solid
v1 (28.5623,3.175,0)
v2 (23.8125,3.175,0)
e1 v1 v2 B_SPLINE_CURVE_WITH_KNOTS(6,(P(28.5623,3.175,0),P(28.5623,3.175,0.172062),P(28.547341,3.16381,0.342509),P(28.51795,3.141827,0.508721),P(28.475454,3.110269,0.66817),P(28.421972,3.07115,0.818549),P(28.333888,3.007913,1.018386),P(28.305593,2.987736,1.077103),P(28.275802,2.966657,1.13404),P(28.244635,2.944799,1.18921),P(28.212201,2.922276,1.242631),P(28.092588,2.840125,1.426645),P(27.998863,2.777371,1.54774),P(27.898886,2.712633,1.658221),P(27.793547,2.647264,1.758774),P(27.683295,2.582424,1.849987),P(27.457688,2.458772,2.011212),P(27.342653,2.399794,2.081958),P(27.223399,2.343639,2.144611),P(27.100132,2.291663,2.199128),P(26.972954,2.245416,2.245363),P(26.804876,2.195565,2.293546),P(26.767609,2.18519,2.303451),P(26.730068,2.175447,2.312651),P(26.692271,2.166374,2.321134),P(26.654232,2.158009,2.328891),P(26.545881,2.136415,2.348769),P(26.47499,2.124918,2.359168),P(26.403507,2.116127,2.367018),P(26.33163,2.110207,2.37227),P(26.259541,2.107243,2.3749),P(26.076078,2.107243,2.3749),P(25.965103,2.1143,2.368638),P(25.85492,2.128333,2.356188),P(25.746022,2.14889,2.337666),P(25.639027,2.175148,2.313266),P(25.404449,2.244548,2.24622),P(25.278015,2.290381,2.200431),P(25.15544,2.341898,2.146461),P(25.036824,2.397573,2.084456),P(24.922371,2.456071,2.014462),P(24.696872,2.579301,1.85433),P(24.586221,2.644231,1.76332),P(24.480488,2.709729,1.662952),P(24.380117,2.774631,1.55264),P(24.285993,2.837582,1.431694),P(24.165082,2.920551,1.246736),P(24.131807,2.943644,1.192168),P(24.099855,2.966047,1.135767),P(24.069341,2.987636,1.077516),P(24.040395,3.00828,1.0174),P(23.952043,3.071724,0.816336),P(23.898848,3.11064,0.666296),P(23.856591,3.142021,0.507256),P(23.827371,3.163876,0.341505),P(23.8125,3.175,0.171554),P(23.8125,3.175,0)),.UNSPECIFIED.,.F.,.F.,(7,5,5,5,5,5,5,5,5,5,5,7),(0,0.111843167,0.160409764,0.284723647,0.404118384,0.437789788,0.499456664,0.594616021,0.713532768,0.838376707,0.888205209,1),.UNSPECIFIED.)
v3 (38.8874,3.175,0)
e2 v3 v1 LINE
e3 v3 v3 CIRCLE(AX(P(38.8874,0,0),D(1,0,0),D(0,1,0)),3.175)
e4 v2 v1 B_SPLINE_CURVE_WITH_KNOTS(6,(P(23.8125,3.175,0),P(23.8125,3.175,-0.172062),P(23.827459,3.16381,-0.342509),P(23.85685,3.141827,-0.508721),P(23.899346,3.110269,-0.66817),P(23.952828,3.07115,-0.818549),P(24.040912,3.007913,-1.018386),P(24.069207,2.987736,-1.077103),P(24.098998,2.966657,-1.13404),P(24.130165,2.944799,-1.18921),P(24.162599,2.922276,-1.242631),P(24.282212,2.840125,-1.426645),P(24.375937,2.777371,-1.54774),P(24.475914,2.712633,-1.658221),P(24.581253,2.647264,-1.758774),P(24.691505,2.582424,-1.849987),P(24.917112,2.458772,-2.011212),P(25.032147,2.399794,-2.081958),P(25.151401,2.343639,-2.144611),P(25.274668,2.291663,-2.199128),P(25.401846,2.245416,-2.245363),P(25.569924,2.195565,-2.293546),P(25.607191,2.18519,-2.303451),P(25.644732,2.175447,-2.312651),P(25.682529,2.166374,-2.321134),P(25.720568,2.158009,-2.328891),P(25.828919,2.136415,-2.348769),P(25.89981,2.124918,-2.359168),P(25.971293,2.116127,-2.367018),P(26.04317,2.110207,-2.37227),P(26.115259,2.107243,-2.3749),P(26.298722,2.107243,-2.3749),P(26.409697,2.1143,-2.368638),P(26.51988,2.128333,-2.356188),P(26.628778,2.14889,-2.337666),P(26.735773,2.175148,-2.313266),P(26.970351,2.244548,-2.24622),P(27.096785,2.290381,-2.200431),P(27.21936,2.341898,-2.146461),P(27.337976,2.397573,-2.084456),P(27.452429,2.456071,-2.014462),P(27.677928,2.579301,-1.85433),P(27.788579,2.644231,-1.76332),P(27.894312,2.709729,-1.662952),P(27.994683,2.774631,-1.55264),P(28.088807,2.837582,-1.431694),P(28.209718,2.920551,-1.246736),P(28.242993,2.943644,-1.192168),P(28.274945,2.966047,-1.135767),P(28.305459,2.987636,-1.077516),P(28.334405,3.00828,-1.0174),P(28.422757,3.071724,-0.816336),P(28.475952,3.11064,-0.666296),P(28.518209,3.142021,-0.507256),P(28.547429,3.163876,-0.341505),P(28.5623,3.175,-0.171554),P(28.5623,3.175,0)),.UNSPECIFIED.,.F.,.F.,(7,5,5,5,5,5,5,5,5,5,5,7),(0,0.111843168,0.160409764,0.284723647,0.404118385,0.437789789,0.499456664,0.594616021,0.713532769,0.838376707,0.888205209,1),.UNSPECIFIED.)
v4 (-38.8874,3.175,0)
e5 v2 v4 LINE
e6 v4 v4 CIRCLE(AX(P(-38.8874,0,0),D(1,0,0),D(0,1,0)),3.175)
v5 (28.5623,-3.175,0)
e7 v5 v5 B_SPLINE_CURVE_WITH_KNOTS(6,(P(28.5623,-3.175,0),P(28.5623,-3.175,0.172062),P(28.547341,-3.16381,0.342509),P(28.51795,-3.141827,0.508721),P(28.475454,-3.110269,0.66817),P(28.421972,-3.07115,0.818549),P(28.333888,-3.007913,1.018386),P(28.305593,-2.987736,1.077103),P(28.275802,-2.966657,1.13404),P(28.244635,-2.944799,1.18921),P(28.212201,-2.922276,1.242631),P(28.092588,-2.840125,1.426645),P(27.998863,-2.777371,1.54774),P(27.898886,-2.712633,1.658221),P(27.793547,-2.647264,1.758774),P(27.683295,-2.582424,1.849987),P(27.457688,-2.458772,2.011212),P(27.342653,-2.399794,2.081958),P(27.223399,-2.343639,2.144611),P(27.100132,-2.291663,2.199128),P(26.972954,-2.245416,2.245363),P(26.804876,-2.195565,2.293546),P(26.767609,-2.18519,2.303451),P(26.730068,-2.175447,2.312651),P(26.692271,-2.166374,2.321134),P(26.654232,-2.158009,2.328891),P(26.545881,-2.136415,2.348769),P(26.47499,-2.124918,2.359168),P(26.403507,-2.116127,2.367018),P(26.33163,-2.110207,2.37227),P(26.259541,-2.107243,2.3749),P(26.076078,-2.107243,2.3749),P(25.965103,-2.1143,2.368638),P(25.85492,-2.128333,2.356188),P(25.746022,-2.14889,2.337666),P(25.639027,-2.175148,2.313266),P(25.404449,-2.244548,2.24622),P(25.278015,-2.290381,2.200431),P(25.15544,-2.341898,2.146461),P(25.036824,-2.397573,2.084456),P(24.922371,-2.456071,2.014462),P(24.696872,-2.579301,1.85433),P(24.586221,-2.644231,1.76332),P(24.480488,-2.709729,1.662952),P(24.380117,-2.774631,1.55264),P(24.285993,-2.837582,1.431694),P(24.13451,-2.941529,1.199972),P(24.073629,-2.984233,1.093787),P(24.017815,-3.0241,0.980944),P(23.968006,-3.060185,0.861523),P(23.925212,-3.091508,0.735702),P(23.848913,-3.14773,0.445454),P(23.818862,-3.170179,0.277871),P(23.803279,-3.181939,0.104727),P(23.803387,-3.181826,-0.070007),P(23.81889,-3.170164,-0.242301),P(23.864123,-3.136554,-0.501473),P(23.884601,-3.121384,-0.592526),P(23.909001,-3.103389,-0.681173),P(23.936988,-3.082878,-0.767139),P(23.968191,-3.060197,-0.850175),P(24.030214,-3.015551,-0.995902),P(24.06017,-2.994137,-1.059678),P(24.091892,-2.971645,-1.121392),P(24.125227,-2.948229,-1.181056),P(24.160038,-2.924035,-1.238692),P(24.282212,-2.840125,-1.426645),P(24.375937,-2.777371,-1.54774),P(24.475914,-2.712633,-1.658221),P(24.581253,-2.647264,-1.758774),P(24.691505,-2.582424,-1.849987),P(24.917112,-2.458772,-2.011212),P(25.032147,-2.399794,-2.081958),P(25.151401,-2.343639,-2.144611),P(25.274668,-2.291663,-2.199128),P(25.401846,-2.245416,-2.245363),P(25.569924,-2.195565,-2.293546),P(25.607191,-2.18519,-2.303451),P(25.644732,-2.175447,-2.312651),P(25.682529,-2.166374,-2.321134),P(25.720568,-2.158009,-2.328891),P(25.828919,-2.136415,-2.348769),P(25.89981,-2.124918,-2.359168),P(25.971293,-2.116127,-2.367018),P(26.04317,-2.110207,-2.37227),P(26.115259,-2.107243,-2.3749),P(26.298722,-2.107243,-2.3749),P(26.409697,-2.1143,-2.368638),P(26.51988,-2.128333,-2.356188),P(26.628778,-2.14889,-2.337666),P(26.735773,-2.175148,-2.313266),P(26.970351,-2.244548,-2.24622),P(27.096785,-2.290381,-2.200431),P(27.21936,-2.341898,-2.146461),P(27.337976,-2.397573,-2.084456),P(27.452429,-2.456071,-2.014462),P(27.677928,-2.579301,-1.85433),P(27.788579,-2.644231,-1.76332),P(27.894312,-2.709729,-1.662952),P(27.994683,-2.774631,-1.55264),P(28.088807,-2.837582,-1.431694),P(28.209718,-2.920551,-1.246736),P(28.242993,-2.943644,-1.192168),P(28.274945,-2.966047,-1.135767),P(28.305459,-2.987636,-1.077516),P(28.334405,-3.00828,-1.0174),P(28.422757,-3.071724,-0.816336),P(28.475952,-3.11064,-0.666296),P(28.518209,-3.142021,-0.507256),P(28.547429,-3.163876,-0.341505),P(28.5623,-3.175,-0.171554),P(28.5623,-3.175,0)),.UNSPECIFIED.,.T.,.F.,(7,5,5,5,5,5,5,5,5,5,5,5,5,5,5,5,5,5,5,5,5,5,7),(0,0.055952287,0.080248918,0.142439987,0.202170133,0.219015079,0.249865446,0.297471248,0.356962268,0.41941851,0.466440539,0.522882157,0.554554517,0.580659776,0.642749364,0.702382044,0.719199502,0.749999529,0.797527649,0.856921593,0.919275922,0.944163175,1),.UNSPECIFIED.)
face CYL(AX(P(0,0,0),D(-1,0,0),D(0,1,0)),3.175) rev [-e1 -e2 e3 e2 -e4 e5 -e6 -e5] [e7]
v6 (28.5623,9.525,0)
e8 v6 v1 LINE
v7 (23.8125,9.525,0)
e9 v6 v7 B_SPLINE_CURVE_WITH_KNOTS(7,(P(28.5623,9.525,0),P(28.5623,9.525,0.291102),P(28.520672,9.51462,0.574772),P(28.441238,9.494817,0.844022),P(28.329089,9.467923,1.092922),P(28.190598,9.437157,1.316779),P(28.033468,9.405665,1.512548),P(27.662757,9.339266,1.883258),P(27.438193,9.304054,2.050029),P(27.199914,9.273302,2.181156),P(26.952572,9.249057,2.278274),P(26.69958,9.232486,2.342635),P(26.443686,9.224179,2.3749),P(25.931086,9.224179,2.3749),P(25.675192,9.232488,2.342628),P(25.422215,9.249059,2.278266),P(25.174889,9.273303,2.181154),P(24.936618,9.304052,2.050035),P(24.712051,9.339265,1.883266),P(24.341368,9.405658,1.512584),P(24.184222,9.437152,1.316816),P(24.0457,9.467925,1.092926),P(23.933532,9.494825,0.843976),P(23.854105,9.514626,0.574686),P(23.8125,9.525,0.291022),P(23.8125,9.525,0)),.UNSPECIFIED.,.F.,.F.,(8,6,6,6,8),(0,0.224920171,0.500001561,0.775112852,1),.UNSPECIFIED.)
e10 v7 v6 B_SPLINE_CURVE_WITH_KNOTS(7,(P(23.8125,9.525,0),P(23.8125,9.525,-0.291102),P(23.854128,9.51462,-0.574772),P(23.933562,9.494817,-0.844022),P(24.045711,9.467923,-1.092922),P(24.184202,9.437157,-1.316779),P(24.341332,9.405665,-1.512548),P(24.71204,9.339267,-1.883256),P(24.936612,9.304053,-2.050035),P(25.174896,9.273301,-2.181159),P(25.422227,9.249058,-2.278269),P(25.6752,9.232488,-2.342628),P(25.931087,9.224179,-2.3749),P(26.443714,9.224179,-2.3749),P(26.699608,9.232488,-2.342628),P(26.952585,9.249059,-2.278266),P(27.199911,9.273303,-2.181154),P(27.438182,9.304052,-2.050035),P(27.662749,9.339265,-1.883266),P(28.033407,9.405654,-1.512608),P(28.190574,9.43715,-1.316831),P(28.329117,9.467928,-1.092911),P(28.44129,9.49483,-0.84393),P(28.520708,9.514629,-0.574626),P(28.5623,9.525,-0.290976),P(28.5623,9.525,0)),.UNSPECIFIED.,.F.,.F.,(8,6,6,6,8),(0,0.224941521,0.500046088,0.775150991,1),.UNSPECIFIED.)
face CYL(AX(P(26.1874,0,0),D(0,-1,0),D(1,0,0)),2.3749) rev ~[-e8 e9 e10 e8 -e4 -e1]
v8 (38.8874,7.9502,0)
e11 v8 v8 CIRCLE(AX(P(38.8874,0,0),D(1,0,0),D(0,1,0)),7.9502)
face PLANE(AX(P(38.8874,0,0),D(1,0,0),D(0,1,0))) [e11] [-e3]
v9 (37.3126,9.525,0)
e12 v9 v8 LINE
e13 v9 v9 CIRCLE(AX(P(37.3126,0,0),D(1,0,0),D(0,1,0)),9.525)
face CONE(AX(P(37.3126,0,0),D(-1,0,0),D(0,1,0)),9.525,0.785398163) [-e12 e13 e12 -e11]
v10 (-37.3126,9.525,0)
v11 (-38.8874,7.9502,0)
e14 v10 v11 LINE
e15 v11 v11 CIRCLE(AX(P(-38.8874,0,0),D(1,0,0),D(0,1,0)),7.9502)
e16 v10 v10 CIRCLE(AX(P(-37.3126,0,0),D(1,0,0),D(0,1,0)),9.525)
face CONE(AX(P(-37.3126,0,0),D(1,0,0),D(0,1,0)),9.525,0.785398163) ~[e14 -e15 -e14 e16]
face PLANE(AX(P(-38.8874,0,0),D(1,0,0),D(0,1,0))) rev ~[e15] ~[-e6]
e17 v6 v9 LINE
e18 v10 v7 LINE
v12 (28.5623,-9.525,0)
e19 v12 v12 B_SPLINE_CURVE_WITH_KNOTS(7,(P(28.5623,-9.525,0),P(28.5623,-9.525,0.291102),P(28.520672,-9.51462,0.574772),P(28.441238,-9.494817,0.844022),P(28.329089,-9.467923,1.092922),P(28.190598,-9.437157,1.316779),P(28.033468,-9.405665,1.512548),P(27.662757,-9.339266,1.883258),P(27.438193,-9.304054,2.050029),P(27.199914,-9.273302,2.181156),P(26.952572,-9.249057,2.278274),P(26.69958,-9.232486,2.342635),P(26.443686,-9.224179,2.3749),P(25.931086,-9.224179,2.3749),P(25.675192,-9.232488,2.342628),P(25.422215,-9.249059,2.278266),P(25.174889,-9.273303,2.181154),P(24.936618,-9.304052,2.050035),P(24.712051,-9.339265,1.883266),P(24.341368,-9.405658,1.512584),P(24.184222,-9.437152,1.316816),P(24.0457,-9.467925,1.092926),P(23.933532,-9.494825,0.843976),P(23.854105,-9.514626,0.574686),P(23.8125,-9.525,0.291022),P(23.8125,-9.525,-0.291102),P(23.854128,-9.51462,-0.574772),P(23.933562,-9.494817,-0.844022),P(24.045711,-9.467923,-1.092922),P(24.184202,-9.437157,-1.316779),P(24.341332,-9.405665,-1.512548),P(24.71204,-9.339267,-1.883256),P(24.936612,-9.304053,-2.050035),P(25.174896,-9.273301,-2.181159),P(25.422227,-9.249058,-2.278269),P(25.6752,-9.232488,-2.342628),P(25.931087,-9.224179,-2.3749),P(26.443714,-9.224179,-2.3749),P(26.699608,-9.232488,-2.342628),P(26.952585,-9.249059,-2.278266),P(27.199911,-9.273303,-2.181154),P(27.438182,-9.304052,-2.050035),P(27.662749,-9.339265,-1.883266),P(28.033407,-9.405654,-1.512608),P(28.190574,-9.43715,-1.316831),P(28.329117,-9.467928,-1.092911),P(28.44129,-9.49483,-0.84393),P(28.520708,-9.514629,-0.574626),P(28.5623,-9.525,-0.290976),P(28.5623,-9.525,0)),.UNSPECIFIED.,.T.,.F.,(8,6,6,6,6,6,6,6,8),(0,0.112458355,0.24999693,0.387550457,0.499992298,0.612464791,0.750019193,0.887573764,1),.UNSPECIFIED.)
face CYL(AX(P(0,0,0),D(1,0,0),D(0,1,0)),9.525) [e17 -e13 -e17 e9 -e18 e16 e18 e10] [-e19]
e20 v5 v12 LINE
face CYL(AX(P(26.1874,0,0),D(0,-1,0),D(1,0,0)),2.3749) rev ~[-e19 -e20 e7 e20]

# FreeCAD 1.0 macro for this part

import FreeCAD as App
import Part
import Sketcher
Q = App.Units.Quantity


def edges_at(feature, points):
    """Names of the edges that pass closest to the given points."""
    edges = feature.Shape.Edges
    near = lambda p: min(range(len(edges)), key=lambda i: edges[i].distToShape(Part.Vertex(*p))[0])
    return sorted({f"Edge{near(p) + 1}" for p in points})

doc = App.newDocument("Part")
body = doc.addObject("PartDesign::Body", "Body")

sketch1 = body.newObject("Sketcher::SketchObject", "Sketch")
sketch1.AttachmentSupport = (doc.getObject("YZ_Plane"), [""])
sketch1.MapMode = "FlatFace"
sketch1.addGeometry([
    Part.Circle(App.Vector(0, 0, 0), App.Vector(0, 0, 1), 9.5),
    Part.Circle(App.Vector(0, 0, 0), App.Vector(0, 0, 1), 3.2),
], False)
sketch1.addConstraint([
    Sketcher.Constraint("Coincident", 0, 3, -1, 1),
    Sketcher.Constraint("Coincident", 1, 3, -1, 1),
    Sketcher.Constraint("Diameter", 0, Q("0.75 in")),
    Sketcher.Constraint("Diameter", 1, Q("0.25 in")),
])
pad1 = body.newObject("PartDesign::Pad", "Pad")
pad1.Profile = sketch1
pad1.Length = Q("3.062 in")
pad1.Midplane = True
doc.recompute()

chamfer = body.newObject("PartDesign::Chamfer", "Chamfer")
chamfer.Base = (pad1, edges_at(pad1, [(38.887, -9.525, 0)]))
chamfer.ChamferType = "Two distances"
chamfer.Size = Q("0.062 in")
chamfer.Size2 = Q("0.062 in")
doc.recompute()

chamfer2 = body.newObject("PartDesign::Chamfer", "Chamfer001")
chamfer2.Base = (chamfer, edges_at(chamfer, [(-38.887, -9.525, 0)]))
chamfer2.ChamferType = "Two distances"
chamfer2.Size = Q("0.062 in")
chamfer2.Size2 = Q("0.062 in")

sketch2 = body.newObject("Sketcher::SketchObject", "Sketch001")
sketch2.AttachmentSupport = (doc.getObject("XZ_Plane"), [""])
sketch2.MapMode = "FlatFace"
sketch2.addGeometry(Part.Circle(App.Vector(26.2, 0, 0), App.Vector(0, 0, 1), 2.4), False)
sketch2.addConstraint([
    Sketcher.Constraint("PointOnObject", 0, 3, -1),
    Sketcher.Constraint("Diameter", 0, Q("0.187 in")),
    Sketcher.Constraint("DistanceX", -1, 1, 0, 3, Q("1.031 in")),
])
pocket1 = body.newObject("PartDesign::Pocket", "Pocket")
pocket1.Profile = sketch2
pocket1.Length = Q("1 in")
pocket1.Midplane = True

doc.recompute()
